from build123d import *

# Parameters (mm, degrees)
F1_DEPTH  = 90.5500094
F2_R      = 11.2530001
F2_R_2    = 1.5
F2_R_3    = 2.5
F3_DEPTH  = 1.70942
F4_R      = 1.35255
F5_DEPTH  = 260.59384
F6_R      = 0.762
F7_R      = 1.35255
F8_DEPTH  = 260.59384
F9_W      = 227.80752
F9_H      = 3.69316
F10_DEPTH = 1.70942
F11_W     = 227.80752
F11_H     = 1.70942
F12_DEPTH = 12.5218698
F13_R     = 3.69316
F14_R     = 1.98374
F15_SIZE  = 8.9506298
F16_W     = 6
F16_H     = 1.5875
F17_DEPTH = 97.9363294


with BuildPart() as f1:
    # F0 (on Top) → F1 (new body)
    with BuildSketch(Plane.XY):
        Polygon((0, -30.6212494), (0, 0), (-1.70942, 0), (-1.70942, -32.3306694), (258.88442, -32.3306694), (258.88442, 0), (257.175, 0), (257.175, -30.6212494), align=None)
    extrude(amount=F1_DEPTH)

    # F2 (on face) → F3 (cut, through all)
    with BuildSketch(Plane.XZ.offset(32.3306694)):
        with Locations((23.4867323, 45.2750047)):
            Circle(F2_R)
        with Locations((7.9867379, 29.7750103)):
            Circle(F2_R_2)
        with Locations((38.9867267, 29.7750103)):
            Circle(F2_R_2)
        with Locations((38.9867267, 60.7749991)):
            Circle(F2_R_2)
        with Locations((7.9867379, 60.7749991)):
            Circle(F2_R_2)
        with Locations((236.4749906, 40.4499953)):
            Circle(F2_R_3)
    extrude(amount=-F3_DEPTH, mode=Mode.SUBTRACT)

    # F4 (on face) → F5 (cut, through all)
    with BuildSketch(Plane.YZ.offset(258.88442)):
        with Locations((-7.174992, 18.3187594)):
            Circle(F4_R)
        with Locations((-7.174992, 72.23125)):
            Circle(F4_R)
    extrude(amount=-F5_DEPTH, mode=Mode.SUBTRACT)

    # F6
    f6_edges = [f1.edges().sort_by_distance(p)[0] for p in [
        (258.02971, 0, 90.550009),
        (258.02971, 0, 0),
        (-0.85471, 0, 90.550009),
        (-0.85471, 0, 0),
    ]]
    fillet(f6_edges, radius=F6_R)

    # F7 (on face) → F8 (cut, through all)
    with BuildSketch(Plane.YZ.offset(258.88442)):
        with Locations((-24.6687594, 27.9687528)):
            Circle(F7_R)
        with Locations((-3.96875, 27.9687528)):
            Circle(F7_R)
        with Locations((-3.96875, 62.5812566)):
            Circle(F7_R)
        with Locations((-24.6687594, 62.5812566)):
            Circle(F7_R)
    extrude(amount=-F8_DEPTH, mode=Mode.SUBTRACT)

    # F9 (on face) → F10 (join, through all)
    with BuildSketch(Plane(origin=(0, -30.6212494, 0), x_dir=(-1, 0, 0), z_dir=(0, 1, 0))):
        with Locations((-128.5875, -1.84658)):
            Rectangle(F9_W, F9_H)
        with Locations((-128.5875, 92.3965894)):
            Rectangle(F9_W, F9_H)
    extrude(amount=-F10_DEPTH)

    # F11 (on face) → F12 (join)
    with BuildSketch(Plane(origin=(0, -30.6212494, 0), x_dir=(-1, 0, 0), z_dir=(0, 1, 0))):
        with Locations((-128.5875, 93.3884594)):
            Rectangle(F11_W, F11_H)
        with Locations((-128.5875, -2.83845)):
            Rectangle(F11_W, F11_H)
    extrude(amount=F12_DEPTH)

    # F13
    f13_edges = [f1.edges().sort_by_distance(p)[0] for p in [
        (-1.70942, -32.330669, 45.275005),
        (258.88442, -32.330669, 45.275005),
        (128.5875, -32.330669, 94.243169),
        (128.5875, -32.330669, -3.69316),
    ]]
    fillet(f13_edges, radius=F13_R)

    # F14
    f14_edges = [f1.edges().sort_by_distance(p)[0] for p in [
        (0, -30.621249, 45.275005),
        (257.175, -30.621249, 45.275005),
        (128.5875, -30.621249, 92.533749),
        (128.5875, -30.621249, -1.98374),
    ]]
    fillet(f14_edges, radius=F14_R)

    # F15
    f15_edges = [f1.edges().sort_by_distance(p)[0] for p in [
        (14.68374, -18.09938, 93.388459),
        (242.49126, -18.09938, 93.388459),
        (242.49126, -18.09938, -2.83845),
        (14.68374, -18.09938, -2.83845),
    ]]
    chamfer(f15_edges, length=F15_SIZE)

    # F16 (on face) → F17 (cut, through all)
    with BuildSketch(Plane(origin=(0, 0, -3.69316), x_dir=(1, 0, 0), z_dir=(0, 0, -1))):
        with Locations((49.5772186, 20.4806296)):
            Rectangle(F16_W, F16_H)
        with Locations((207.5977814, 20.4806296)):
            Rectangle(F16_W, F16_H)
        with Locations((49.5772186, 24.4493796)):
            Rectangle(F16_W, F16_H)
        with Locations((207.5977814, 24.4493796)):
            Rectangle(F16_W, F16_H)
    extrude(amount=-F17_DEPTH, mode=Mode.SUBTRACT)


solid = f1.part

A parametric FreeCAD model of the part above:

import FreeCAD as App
import Part
import Sketcher
Q = App.Units.Quantity


def edges_at(feature, points):
    """Names of the edges that pass closest to the given points."""
    edges = feature.Shape.Edges
    near = lambda p: min(range(len(edges)), key=lambda i: edges[i].distToShape(Part.Vertex(*p))[0])
    return sorted({f"Edge{near(p) + 1}" for p in points})


def add_polygon(sketch, points):
    """Adds a closed chain of lines whose ends are joined by coincident constraints."""
    first, n = sketch.GeometryCount, len(points)
    for a, b in zip(points, points[1:] + points[:1]):
        sketch.addGeometry(Part.LineSegment(App.Vector(*a, 0), App.Vector(*b, 0)), False)
    for i in range(n):
        sketch.addConstraint(Sketcher.Constraint("Coincident", first + i, 2, first + (i + 1) % n, 1))

doc = App.newDocument("Part")
params = doc.addObject("Spreadsheet::Sheet", "Params")
for row, (alias, value) in enumerate([
    ("pad1_length", "90.550009 mm"),
    ("sketch2_diameter", "3 mm"),
    ("sketch2_diameter2", "5 mm"),
    ("fillet_radius", "0.762 mm"),
    ("pad3_length", "12.52187 mm"),
    ("fillet2_radius", "3.69316 mm"),
    ("fillet3_radius", "1.98374 mm"),
    ("chamfer_size", "8.95063 mm"),
    ("sketch7_width", "6 mm"),
], start=1):
    params.set(f"A{row}", alias)
    params.set(f"B{row}", "=" + value)
    params.setAlias(f"B{row}", alias)

body = doc.addObject("PartDesign::Body", "Body")

# Sketch on XY plane
sketch1 = body.newObject("Sketcher::SketchObject", "Sketch")
sketch1.AttachmentSupport = (doc.getObject("XY_Plane"), [""])
sketch1.MapMode = "FlatFace"
add_polygon(sketch1, [(0, -30.6), (0, 0), (-1.7, 0), (-1.7, -32.3), (258.9, -32.3), (258.9, 0), (257.2, 0), (257.2, -30.6)])  # lines 0-7
sketch1.addConstraint([
    Sketcher.Constraint("Vertical", 0),
    Sketcher.Constraint("Horizontal", 1),
    Sketcher.Constraint("Vertical", 2),
    Sketcher.Constraint("Horizontal", 3),
    Sketcher.Constraint("Vertical", 4),
    Sketcher.Constraint("Horizontal", 5),
    Sketcher.Constraint("Vertical", 6),
    Sketcher.Constraint("Horizontal", 7),
    Sketcher.Constraint("Coincident", 0, 2, -1, 1),
    Sketcher.Constraint("PointOnObject", 4, 2, -1),
    Sketcher.Constraint("Equal", 1, 5),
    Sketcher.Constraint("DistanceX", 7, 2, 7, 1, Q("257.175 mm")),
    Sketcher.Constraint("DistanceX", 1, 2, 1, 1, Q("1.70942 mm")),
    Sketcher.Constraint("DistanceY", 0, 1, 0, 2, Q("30.621249 mm")),
    Sketcher.Constraint("DistanceY", 2, 2, 2, 1, Q("32.330669 mm")),
])
pad1 = body.newObject("PartDesign::Pad", "Pad")
pad1.Profile = sketch1
pad1.setExpression("Length", "Params.pad1_length")

# Sketch on XZ plane
sketch2 = body.newObject("Sketcher::SketchObject", "Sketch001")
sketch2.AttachmentSupport = (doc.getObject("XZ_Plane"), [""])
sketch2.MapMode = "FlatFace"
sketch2.AttachmentOffset = App.Placement(App.Vector(0, 0, 32.330669), App.Rotation())
sketch2.addGeometry([
    Part.Circle(App.Vector(23.5, 45.3, 0), App.Vector(0, 0, 1), 11.3),  # 0
    Part.Circle(App.Vector(8, 29.8, 0), App.Vector(0, 0, 1), 1.5),  # 1
    Part.Circle(App.Vector(39, 29.8, 0), App.Vector(0, 0, 1), 1.5),  # 2
    Part.Circle(App.Vector(39, 60.8, 0), App.Vector(0, 0, 1), 1.5),  # 3
    Part.Circle(App.Vector(8, 60.8, 0), App.Vector(0, 0, 1), 1.5),  # 4
    Part.Circle(App.Vector(236.5, 40.4, 0), App.Vector(0, 0, 1), 2.5),  # 5
], False)
sketch2.addConstraint([
    Sketcher.Constraint("Equal", 1, 2),
    Sketcher.Constraint("Equal", 2, 3),
    Sketcher.Constraint("Equal", 3, 4),
    Sketcher.Constraint("Horizontal", 1, 3, 2, 3),
    Sketcher.Constraint("Horizontal", 3, 3, 4, 3),
    Sketcher.Constraint("Vertical", 2, 3, 3, 3),
    Sketcher.Constraint("Vertical", 1, 3, 4, 3),
    Sketcher.Constraint("Diameter", 1, Q("3 mm")),
    Sketcher.Constraint("Diameter", 5, Q("5 mm")),
    Sketcher.Constraint("Diameter", 0, Q("22.506 mm")),
    Sketcher.Constraint("DistanceY", -1, 1, 3, 3, Q("60.774999 mm")),
    Sketcher.Constraint("DistanceY", -1, 1, 1, 3, Q("29.77501 mm")),
    Sketcher.Constraint("DistanceX", -1, 1, 5, 3, Q("236.474991 mm")),
    Sketcher.Constraint("DistanceX", 1, 3, 2, 3, Q("30.999989 mm")),
    Sketcher.Constraint("DistanceX", 0, 3, 5, 3, Q("212.988258 mm")),
    Sketcher.Constraint("DistanceY", 5, 3, 0, 3, Q("4.825009 mm")),
    Sketcher.Constraint("DistanceY", -1, 1, 0, 3, Q("45.275005 mm")),
    Sketcher.Constraint("DistanceX", -1, 1, 1, 3, Q("7.986738 mm")),
])
sketch2.setExpression("Constraints[7]", "Params.sketch2_diameter")
sketch2.setExpression("Constraints[8]", "Params.sketch2_diameter2")
pocket1 = body.newObject("PartDesign::Pocket", "Pocket")
pocket1.Profile = sketch2
pocket1.Type = "ThroughAll"

# Sketch on YZ plane
sketch3 = body.newObject("Sketcher::SketchObject", "Sketch002")
sketch3.AttachmentSupport = (doc.getObject("YZ_Plane"), [""])
sketch3.MapMode = "FlatFace"
sketch3.AttachmentOffset = App.Placement(App.Vector(0, 0, 258.88442), App.Rotation())
sketch3.addGeometry([
    Part.Circle(App.Vector(-7.2, 18.3, 0), App.Vector(0, 0, 1), 1.4),
    Part.Circle(App.Vector(-7.2, 72.2, 0), App.Vector(0, 0, 1), 1.4),
], False)
sketch3.addConstraint([
    Sketcher.Constraint("Equal", 0, 1),
    Sketcher.Constraint("Vertical", 0, 3, 1, 3),
    Sketcher.Constraint("Diameter", 0, Q("2.7051 mm")),
    Sketcher.Constraint("DistanceX", 0, 3, -1, 1, Q("7.174992 mm")),
    Sketcher.Constraint("DistanceY", -1, 1, 0, 3, Q("18.318759 mm")),
    Sketcher.Constraint("DistanceY", -1, 1, 1, 3, Q("72.23125 mm")),
])
pocket2 = body.newObject("PartDesign::Pocket", "Pocket001")
pocket2.Profile = sketch3
pocket2.Type = "ThroughAll"
doc.recompute()

fillet = body.newObject("PartDesign::Fillet", "Fillet")
fillet.Base = (pocket2, edges_at(pocket2, [
    (258.03, 0, 90.55),
    (258.03, 0, 0),
    (-0.855, 0, 90.55),
    (-0.855, 0, 0),
]))
fillet.setExpression("Radius", "Params.fillet_radius")

# Sketch on YZ plane
sketch4 = body.newObject("Sketcher::SketchObject", "Sketch003")
sketch4.AttachmentSupport = (doc.getObject("YZ_Plane"), [""])
sketch4.MapMode = "FlatFace"
sketch4.AttachmentOffset = App.Placement(App.Vector(0, 0, 258.88442), App.Rotation())
sketch4.addGeometry([
    Part.Circle(App.Vector(-24.7, 28, 0), App.Vector(0, 0, 1), 1.4),
    Part.Circle(App.Vector(-4, 28, 0), App.Vector(0, 0, 1), 1.4),
    Part.Circle(App.Vector(-4, 62.6, 0), App.Vector(0, 0, 1), 1.4),
    Part.Circle(App.Vector(-24.7, 62.6, 0), App.Vector(0, 0, 1), 1.4),
], False)
sketch4.addConstraint([
    Sketcher.Constraint("Equal", 0, 1),
    Sketcher.Constraint("Equal", 1, 2),
    Sketcher.Constraint("Equal", 2, 3),
    Sketcher.Constraint("Horizontal", 0, 3, 1, 3),
    Sketcher.Constraint("Horizontal", 2, 3, 3, 3),
    Sketcher.Constraint("Vertical", 1, 3, 2, 3),
    Sketcher.Constraint("Vertical", 0, 3, 3, 3),
    Sketcher.Constraint("Diameter", 0, Q("2.7051 mm")),
    Sketcher.Constraint("DistanceX", 0, 3, -1, 1, Q("24.668759 mm")),
    Sketcher.Constraint("DistanceX", 1, 3, -1, 1, Q("3.96875 mm")),
    Sketcher.Constraint("DistanceY", -1, 1, 0, 3, Q("27.968753 mm")),
    Sketcher.Constraint("DistanceY", -1, 1, 2, 3, Q("62.581257 mm")),
])
pocket3 = body.newObject("PartDesign::Pocket", "Pocket002")
pocket3.Profile = sketch4
pocket3.Type = "ThroughAll"

# Sketch on XZ plane
sketch5 = body.newObject("Sketcher::SketchObject", "Sketch004")
sketch5.AttachmentSupport = (doc.getObject("XZ_Plane"), [""])
sketch5.MapMode = "FlatFace"
sketch5.AttachmentOffset = App.Placement(App.Vector(0, 0, 30.621249), App.Rotation())
add_polygon(sketch5, [(242.5, 0), (242.5, -3.7), (14.7, -3.7), (14.7, 0)])  # lines 0-3
add_polygon(sketch5, [(242.5, 94.2), (242.5, 90.6), (14.7, 90.6), (14.7, 94.2)])  # lines 4-7
sketch5.addConstraint([
    Sketcher.Constraint("Vertical", 0),
    Sketcher.Constraint("Horizontal", 1),
    Sketcher.Constraint("Vertical", 2),
    Sketcher.Constraint("Horizontal", 3),
    Sketcher.Constraint("Vertical", 4),
    Sketcher.Constraint("Horizontal", 5),
    Sketcher.Constraint("Vertical", 6),
    Sketcher.Constraint("Horizontal", 7),
    Sketcher.Constraint("PointOnObject", 2, 2, -1),
    Sketcher.Constraint("Vertical", 3, 2, 4, 2),
    Sketcher.Constraint("Vertical", 2, 2, 5, 2),
    Sketcher.Constraint("Equal", 2, 4),
    Sketcher.Constraint("DistanceX", 1, 2, 1, 1, Q("227.80752 mm")),
    Sketcher.Constraint("DistanceY", 0, 2, 0, 1, Q("3.69316 mm")),
    Sketcher.Constraint("DistanceX", -1, 1, 0, 2, Q("242.49126 mm")),
    Sketcher.Constraint("DistanceY", -1, 1, 4, 2, Q("90.550009 mm")),
])
pad2 = body.newObject("PartDesign::Pad", "Pad001")
pad2.Profile = sketch5
pad2.Type = "UpToLast"

# Sketch on XZ plane
sketch6 = body.newObject("Sketcher::SketchObject", "Sketch005")
sketch6.AttachmentSupport = (doc.getObject("XZ_Plane"), [""])
sketch6.MapMode = "FlatFace"
sketch6.AttachmentOffset = App.Placement(App.Vector(0, 0, 30.621249), App.Rotation())
add_polygon(sketch6, [(242.5, 94.2), (242.5, 92.5), (14.7, 92.5), (14.7, 94.2)])  # lines 0-3
add_polygon(sketch6, [(242.5, -2), (242.5, -3.7), (14.7, -3.7), (14.7, -2)])  # lines 4-7
sketch6.addConstraint([
    Sketcher.Constraint("Vertical", 0),
    Sketcher.Constraint("Horizontal", 1),
    Sketcher.Constraint("Vertical", 2),
    Sketcher.Constraint("Horizontal", 3),
    Sketcher.Constraint("Vertical", 4),
    Sketcher.Constraint("Horizontal", 5),
    Sketcher.Constraint("Vertical", 6),
    Sketcher.Constraint("Horizontal", 7),
    Sketcher.Constraint("Vertical", 3, 2, 4, 2),
    Sketcher.Constraint("Vertical", 2, 2, 5, 2),
    Sketcher.Constraint("Equal", 2, 4),
    Sketcher.Constraint("DistanceX", 1, 2, 1, 1, Q("227.80752 mm")),
    Sketcher.Constraint("DistanceY", 0, 2, 0, 1, Q("1.70942 mm")),
    Sketcher.Constraint("DistanceX", -1, 1, 0, 2, Q("242.49126 mm")),
    Sketcher.Constraint("DistanceY", -1, 1, 0, 2, Q("92.533749 mm")),
    Sketcher.Constraint("DistanceY", 4, 2, -1, 1, Q("3.69316 mm")),
])
pad3 = body.newObject("PartDesign::Pad", "Pad002")
pad3.Profile = sketch6
pad3.setExpression("Length", "Params.pad3_length")
pad3.Reversed = True
doc.recompute()

fillet2 = body.newObject("PartDesign::Fillet", "Fillet001")
fillet2.Base = (pad3, edges_at(pad3, [
    (-1.709, -32.331, 45.275),
    (258.884, -32.331, 45.275),
    (128.588, -32.331, 94.243),
    (128.588, -32.331, -3.693),
]))
fillet2.setExpression("Radius", "Params.fillet2_radius")
doc.recompute()

fillet3 = body.newObject("PartDesign::Fillet", "Fillet002")
fillet3.Base = (fillet2, edges_at(fillet2, [
    (0, -30.621, 45.275),
    (257.175, -30.621, 45.275),
    (128.588, -30.621, 92.534),
    (128.588, -30.621, -1.984),
]))
fillet3.setExpression("Radius", "Params.fillet3_radius")
doc.recompute()

chamfer = body.newObject("PartDesign::Chamfer", "Chamfer")
chamfer.Base = (fillet3, edges_at(fillet3, [
    (14.684, -18.099, 93.388),
    (242.491, -18.099, 93.388),
    (242.491, -18.099, -2.838),
    (14.684, -18.099, -2.838),
]))
chamfer.setExpression("Size", "Params.chamfer_size")

# Sketch on XY plane
sketch7 = body.newObject("Sketcher::SketchObject", "Sketch006")
sketch7.AttachmentSupport = (doc.getObject("XY_Plane"), [""])
sketch7.MapMode = "FlatFace"
sketch7.AttachmentOffset = App.Placement(App.Vector(0, 0, -3.69316), App.Rotation())
add_polygon(sketch7, [(46.6, -21.3), (46.6, -19.7), (52.6, -19.7), (52.6, -21.3)])  # lines 0-3
add_polygon(sketch7, [(204.6, -21.3), (204.6, -19.7), (210.6, -19.7), (210.6, -21.3)])  # lines 4-7
add_polygon(sketch7, [(46.6, -25.2), (46.6, -23.7), (52.6, -23.7), (52.6, -25.2)])  # lines 8-11
add_polygon(sketch7, [(204.6, -25.2), (204.6, -23.7), (210.6, -23.7), (210.6, -25.2)])  # lines 12-15
sketch7.addConstraint([
    Sketcher.Constraint("Vertical", 0),
    Sketcher.Constraint("Horizontal", 1),
    Sketcher.Constraint("Vertical", 2),
    Sketcher.Constraint("Horizontal", 3),
    Sketcher.Constraint("Vertical", 4),
    Sketcher.Constraint("Horizontal", 5),
    Sketcher.Constraint("Vertical", 6),
    Sketcher.Constraint("Horizontal", 7),
    Sketcher.Constraint("Vertical", 8),
    Sketcher.Constraint("Horizontal", 9),
    Sketcher.Constraint("Vertical", 10),
    Sketcher.Constraint("Horizontal", 11),
    Sketcher.Constraint("Vertical", 12),
    Sketcher.Constraint("Horizontal", 13),
    Sketcher.Constraint("Vertical", 14),
    Sketcher.Constraint("Horizontal", 15),
    Sketcher.Constraint("Horizontal", 1, 2, 4, 2),
    Sketcher.Constraint("Horizontal", 3, 2, 6, 2),
    Sketcher.Constraint("Horizontal", 9, 2, 12, 2),
    Sketcher.Constraint("Horizontal", 11, 2, 14, 2),
    Sketcher.Constraint("Vertical", 3, 2, 8, 2),
    Sketcher.Constraint("Vertical", 2, 2, 9, 2),
    Sketcher.Constraint("Vertical", 7, 2, 12, 2),
    Sketcher.Constraint("Vertical", 6, 2, 13, 2),
    Sketcher.Constraint("Equal", 3, 5),
    Sketcher.Constraint("Equal", 6, 8),
    Sketcher.Constraint("DistanceX", 1, 1, 1, 2, Q("6 mm")),
    Sketcher.Constraint("DistanceY", 0, 1, 0, 2, Q("1.5875 mm")),
    Sketcher.Constraint("DistanceX", -1, 1, 0, 2, Q("46.577219 mm")),
    Sketcher.Constraint("DistanceY", 0, 2, -1, 1, Q("19.68688 mm")),
    Sketcher.Constraint("DistanceX", -1, 1, 4, 2, Q("204.597781 mm")),
    Sketcher.Constraint("DistanceY", 8, 2, -1, 1, Q("23.65563 mm")),
])
sketch7.setExpression("Constraints[42]", "Params.sketch7_width")
pocket4 = body.newObject("PartDesign::Pocket", "Pocket003")
pocket4.Profile = sketch7
pocket4.Type = "ThroughAll"
pocket4.Reversed = True

doc.recompute()
